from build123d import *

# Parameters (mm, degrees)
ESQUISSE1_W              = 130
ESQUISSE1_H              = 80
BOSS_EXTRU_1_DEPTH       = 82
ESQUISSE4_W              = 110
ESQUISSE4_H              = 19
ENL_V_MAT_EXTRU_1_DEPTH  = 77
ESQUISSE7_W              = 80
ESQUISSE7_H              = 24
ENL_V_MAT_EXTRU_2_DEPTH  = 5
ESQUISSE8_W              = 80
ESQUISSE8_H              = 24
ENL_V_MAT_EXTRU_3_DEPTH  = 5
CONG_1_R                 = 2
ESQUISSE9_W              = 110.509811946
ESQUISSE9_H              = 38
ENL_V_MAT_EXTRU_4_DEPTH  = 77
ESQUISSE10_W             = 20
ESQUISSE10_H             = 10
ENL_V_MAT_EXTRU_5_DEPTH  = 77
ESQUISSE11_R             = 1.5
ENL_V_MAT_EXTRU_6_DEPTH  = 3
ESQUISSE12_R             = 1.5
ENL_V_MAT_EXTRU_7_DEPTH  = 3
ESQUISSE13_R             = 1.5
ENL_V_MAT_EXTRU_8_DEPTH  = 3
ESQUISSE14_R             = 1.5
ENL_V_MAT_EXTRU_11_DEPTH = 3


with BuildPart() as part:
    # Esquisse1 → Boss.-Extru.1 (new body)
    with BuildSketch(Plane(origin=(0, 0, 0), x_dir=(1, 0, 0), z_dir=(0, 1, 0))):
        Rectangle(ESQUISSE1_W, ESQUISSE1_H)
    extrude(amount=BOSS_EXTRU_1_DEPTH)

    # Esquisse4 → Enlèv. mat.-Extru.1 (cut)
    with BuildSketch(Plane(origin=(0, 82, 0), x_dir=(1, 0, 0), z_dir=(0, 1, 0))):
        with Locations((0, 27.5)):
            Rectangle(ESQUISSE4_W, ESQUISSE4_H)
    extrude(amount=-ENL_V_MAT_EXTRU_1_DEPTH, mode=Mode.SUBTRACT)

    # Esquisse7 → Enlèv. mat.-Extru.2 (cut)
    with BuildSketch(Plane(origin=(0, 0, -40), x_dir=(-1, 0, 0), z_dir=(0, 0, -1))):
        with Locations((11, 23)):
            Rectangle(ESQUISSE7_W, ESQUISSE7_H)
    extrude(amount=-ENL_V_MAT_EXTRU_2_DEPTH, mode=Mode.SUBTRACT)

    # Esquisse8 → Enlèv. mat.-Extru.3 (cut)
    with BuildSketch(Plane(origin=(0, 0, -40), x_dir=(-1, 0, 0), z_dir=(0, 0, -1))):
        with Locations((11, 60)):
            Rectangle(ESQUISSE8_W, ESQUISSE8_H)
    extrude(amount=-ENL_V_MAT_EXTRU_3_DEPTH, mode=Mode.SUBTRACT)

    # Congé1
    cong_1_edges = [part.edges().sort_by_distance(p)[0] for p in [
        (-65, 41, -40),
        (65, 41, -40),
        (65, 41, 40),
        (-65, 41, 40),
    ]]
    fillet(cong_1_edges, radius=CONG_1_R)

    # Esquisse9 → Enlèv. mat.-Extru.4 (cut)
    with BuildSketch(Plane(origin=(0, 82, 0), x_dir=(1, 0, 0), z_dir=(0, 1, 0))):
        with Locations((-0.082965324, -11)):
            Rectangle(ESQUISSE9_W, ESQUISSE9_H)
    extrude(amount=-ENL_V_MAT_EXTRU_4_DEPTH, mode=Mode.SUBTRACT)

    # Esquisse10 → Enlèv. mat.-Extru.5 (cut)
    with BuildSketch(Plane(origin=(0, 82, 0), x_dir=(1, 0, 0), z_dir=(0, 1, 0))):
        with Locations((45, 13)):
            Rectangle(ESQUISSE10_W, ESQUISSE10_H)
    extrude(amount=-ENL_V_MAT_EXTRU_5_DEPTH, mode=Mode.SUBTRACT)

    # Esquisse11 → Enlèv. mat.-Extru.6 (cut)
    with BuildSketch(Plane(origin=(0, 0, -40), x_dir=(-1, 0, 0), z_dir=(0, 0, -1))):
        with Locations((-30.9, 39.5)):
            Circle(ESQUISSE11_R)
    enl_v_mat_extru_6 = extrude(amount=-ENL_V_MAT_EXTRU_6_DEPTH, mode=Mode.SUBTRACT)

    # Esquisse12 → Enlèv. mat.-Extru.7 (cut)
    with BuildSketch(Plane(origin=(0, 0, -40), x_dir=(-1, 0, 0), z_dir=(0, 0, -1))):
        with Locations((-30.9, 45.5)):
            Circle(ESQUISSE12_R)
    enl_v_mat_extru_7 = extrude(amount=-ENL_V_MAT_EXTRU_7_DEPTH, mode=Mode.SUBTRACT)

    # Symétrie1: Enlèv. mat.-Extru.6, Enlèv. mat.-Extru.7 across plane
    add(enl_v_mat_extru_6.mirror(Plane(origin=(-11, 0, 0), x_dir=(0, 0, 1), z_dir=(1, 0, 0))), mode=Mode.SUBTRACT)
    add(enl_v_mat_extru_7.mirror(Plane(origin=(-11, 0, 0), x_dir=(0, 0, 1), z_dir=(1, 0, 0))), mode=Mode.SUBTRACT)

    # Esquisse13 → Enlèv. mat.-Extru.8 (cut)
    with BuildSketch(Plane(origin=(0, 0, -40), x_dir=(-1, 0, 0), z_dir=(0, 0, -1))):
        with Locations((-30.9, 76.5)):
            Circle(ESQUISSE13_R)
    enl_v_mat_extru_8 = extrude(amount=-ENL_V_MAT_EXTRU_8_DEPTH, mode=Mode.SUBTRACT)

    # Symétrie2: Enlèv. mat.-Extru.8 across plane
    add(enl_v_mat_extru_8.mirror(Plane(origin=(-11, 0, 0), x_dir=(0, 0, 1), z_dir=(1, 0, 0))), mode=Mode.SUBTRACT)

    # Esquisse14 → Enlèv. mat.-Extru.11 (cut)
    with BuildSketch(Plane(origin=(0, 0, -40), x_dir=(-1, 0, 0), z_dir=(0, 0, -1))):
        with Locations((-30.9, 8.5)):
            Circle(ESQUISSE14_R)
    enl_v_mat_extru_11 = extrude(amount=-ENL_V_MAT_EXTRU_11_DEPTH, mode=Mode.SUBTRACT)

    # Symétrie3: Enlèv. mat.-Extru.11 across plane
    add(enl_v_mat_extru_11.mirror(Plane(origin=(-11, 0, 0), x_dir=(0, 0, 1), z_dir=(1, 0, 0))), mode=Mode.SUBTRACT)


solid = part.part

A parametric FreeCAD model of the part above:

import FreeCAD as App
import Part
import Sketcher


def edges_at(feature, points):
    """Names of the edges that pass closest to the given points."""
    edges = feature.Shape.Edges
    near = lambda p: min(range(len(edges)), key=lambda i: edges[i].distToShape(Part.Vertex(*p))[0])
    return sorted({f"Edge{near(p) + 1}" for p in points})


def add_polygon(sketch, points):
    """Adds a closed chain of lines whose ends are joined by coincident constraints."""
    first, n = sketch.GeometryCount, len(points)
    for a, b in zip(points, points[1:] + points[:1]):
        sketch.addGeometry(Part.LineSegment(App.Vector(*a, 0), App.Vector(*b, 0)), False)
    for i in range(n):
        sketch.addConstraint(Sketcher.Constraint("Coincident", first + i, 2, first + (i + 1) % n, 1))

doc = App.newDocument("Part")
params = doc.addObject("Spreadsheet::Sheet", "Params")
for row, (alias, value) in enumerate([
    ("sketch1_width", "130 mm"),
    ("sketch1_height", "80 mm"),
    ("pad1_length", "82 mm"),
    ("sketch2_width", "110 mm"),
    ("sketch2_height", "19 mm"),
    ("pocket1_length", "77 mm"),
    ("sketch3_width", "80 mm"),
    ("sketch3_height", "24 mm"),
    ("pocket2_length", "5 mm"),
    ("sketch4_width", "80 mm"),
    ("sketch4_height", "24 mm"),
    ("pocket3_length", "5 mm"),
    ("fillet_radius", "2 mm"),
    ("sketch5_height", "38 mm"),
    ("pocket4_length", "77 mm"),
    ("sketch6_width", "20 mm"),
    ("sketch6_height", "10 mm"),
    ("pocket5_length", "77 mm"),
    ("sketch7_diameter", "3 mm"),
    ("pocket6_length", "3 mm"),
    ("sketch8_diameter", "3 mm"),
    ("pocket7_length", "3 mm"),
    ("sketch9_diameter", "3 mm"),
    ("pocket8_length", "3 mm"),
    ("sketch10_diameter", "3 mm"),
    ("pocket9_length", "3 mm"),
], start=1):
    params.set(f"A{row}", alias)
    params.set(f"B{row}", "=" + value)
    params.setAlias(f"B{row}", alias)

body = doc.addObject("PartDesign::Body", "Body")

# Sketch on XZ plane
sketch1 = body.newObject("Sketcher::SketchObject", "Sketch")
sketch1.AttachmentSupport = (doc.getObject("XZ_Plane"), [""])
sketch1.MapMode = "FlatFace"
add_polygon(sketch1, [(-65, -40), (-65, 40), (65, 40), (65, -40)])  # lines 0-3
sketch1.addConstraint([
    Sketcher.Constraint("Vertical", 0),
    Sketcher.Constraint("Horizontal", 1),
    Sketcher.Constraint("Vertical", 2),
    Sketcher.Constraint("Horizontal", 3),
    Sketcher.Constraint("Symmetric", 0, 2, 2, 2, -1, 1),
    Sketcher.Constraint("DistanceX", 1, 1, 1, 2, 130.0),
    Sketcher.Constraint("DistanceY", 0, 1, 0, 2, 80.0),
])
sketch1.setExpression("Constraints[9]", "Params.sketch1_width")
sketch1.setExpression("Constraints[10]", "Params.sketch1_height")
pad1 = body.newObject("PartDesign::Pad", "Pad")
pad1.Profile = sketch1
pad1.setExpression("Length", "Params.pad1_length")
pad1.Reversed = True

# Sketch on XZ plane
sketch2 = body.newObject("Sketcher::SketchObject", "Sketch001")
sketch2.AttachmentSupport = (doc.getObject("XZ_Plane"), [""])
sketch2.MapMode = "FlatFace"
sketch2.AttachmentOffset = App.Placement(App.Vector(0, 0, -82), App.Rotation())
add_polygon(sketch2, [(-55, -37), (-55, -18), (55, -18), (55, -37)])  # lines 0-3
sketch2.addConstraint([
    Sketcher.Constraint("Vertical", 0),
    Sketcher.Constraint("Horizontal", 1),
    Sketcher.Constraint("Vertical", 2),
    Sketcher.Constraint("Horizontal", 3),
    Sketcher.Constraint("DistanceX", 1, 1, 1, 2, 110.0),
    Sketcher.Constraint("DistanceY", 0, 1, 0, 2, 19.0),
    Sketcher.Constraint("DistanceX", 0, 2, -1, 1, 55.0),
    Sketcher.Constraint("DistanceY", 0, 2, -1, 1, 18.0),
])
sketch2.setExpression("Constraints[8]", "Params.sketch2_width")
sketch2.setExpression("Constraints[9]", "Params.sketch2_height")
pocket1 = body.newObject("PartDesign::Pocket", "Pocket")
pocket1.Profile = sketch2
pocket1.setExpression("Length", "Params.pocket1_length")
pocket1.Reversed = True

# Sketch on XY plane
sketch3 = body.newObject("Sketcher::SketchObject", "Sketch002")
sketch3.AttachmentSupport = (doc.getObject("XY_Plane"), [""])
sketch3.MapMode = "FlatFace"
sketch3.AttachmentOffset = App.Placement(App.Vector(0, 0, -40), App.Rotation())
add_polygon(sketch3, [(29, 35), (29, 11), (-51, 11), (-51, 35)])  # lines 0-3
sketch3.addConstraint([
    Sketcher.Constraint("Vertical", 0),
    Sketcher.Constraint("Horizontal", 1),
    Sketcher.Constraint("Vertical", 2),
    Sketcher.Constraint("Horizontal", 3),
    Sketcher.Constraint("DistanceX", 1, 2, 1, 1, 80.0),
    Sketcher.Constraint("DistanceY", 0, 2, 0, 1, 24.0),
    Sketcher.Constraint("DistanceX", -1, 1, 0, 2, 29.0),
    Sketcher.Constraint("DistanceY", -1, 1, 0, 2, 11.0),
])
sketch3.setExpression("Constraints[8]", "Params.sketch3_width")
sketch3.setExpression("Constraints[9]", "Params.sketch3_height")
pocket2 = body.newObject("PartDesign::Pocket", "Pocket001")
pocket2.Profile = sketch3
pocket2.setExpression("Length", "Params.pocket2_length")
pocket2.Reversed = True

# Sketch on XY plane
sketch4 = body.newObject("Sketcher::SketchObject", "Sketch003")
sketch4.AttachmentSupport = (doc.getObject("XY_Plane"), [""])
sketch4.MapMode = "FlatFace"
sketch4.AttachmentOffset = App.Placement(App.Vector(0, 0, -40), App.Rotation())
add_polygon(sketch4, [(29, 72), (29, 48), (-51, 48), (-51, 72)])  # lines 0-3
sketch4.addConstraint([
    Sketcher.Constraint("Vertical", 0),
    Sketcher.Constraint("Horizontal", 1),
    Sketcher.Constraint("Vertical", 2),
    Sketcher.Constraint("Horizontal", 3),
    Sketcher.Constraint("DistanceX", 1, 2, 1, 1, 80.0),
    Sketcher.Constraint("DistanceY", 0, 2, 0, 1, 24.0),
    Sketcher.Constraint("DistanceX", -1, 1, 0, 2, 29.0),
    Sketcher.Constraint("DistanceY", -1, 1, 0, 2, 48.0),
])
sketch4.setExpression("Constraints[8]", "Params.sketch4_width")
sketch4.setExpression("Constraints[9]", "Params.sketch4_height")
pocket3 = body.newObject("PartDesign::Pocket", "Pocket002")
pocket3.Profile = sketch4
pocket3.setExpression("Length", "Params.pocket3_length")
pocket3.Reversed = True
doc.recompute()

fillet = body.newObject("PartDesign::Fillet", "Fillet")
fillet.Base = (pocket3, edges_at(pocket3, [
    (-65, 41, -40),
    (65, 41, -40),
    (65, 41, 40),
    (-65, 41, 40),
]))
fillet.setExpression("Radius", "Params.fillet_radius")

# Sketch on XZ plane
sketch5 = body.newObject("Sketcher::SketchObject", "Sketch004")
sketch5.AttachmentSupport = (doc.getObject("XZ_Plane"), [""])
sketch5.MapMode = "FlatFace"
sketch5.AttachmentOffset = App.Placement(App.Vector(0, 0, -82), App.Rotation())
add_polygon(sketch5, [(-55, -8), (-55, 30), (55, 30), (55, -8)])  # lines 0-3
sketch5.addConstraint([
    Sketcher.Constraint("Vertical", 0),
    Sketcher.Constraint("Horizontal", 1),
    Sketcher.Constraint("Vertical", 2),
    Sketcher.Constraint("Horizontal", 3),
    Sketcher.Constraint("DistanceY", 0, 1, 0, 2, 38.0),
    Sketcher.Constraint("DistanceY", -1, 1, 0, 2, 30.0),
    Sketcher.Constraint("DistanceX", 1, 1, 1, 2, 110.509812),
    Sketcher.Constraint("DistanceX", 0, 2, -1, 1, 55.337871),
])
sketch5.setExpression("Constraints[8]", "Params.sketch5_height")
pocket4 = body.newObject("PartDesign::Pocket", "Pocket003")
pocket4.Profile = sketch5
pocket4.setExpression("Length", "Params.pocket4_length")
pocket4.Reversed = True

# Sketch on XZ plane
sketch6 = body.newObject("Sketcher::SketchObject", "Sketch005")
sketch6.AttachmentSupport = (doc.getObject("XZ_Plane"), [""])
sketch6.MapMode = "FlatFace"
sketch6.AttachmentOffset = App.Placement(App.Vector(0, 0, -82), App.Rotation())
add_polygon(sketch6, [(35, -18), (35, -8), (55, -8), (55, -18)])  # lines 0-3
sketch6.addConstraint([
    Sketcher.Constraint("Vertical", 0),
    Sketcher.Constraint("Horizontal", 1),
    Sketcher.Constraint("Vertical", 2),
    Sketcher.Constraint("Horizontal", 3),
    Sketcher.Constraint("DistanceX", 1, 1, 1, 2, 20.0),
    Sketcher.Constraint("DistanceY", 0, 1, 0, 2, 10.0),
    Sketcher.Constraint("DistanceX", -1, 1, 0, 2, 35.0),
    Sketcher.Constraint("DistanceY", 0, 2, -1, 1, 8.0),
])
sketch6.setExpression("Constraints[8]", "Params.sketch6_width")
sketch6.setExpression("Constraints[9]", "Params.sketch6_height")
pocket5 = body.newObject("PartDesign::Pocket", "Pocket004")
pocket5.Profile = sketch6
pocket5.setExpression("Length", "Params.pocket5_length")
pocket5.Reversed = True

# Sketch on XY plane
sketch7 = body.newObject("Sketcher::SketchObject", "Sketch006")
sketch7.AttachmentSupport = (doc.getObject("XY_Plane"), [""])
sketch7.MapMode = "FlatFace"
sketch7.AttachmentOffset = App.Placement(App.Vector(0, 0, -40), App.Rotation())
sketch7.addGeometry(Part.Circle(App.Vector(30.9, 39.5, 0), App.Vector(0, 0, 1), 1.5), False)
sketch7.addConstraint([
    Sketcher.Constraint("Diameter", 0, 3.0),
    Sketcher.Constraint("DistanceX", -1, 1, 0, 3, 30.9),
    Sketcher.Constraint("DistanceY", -1, 1, 0, 3, 39.5),
])
sketch7.setExpression("Constraints[0]", "Params.sketch7_diameter")
pocket6 = body.newObject("PartDesign::Pocket", "Pocket005")
pocket6.Profile = sketch7
pocket6.setExpression("Length", "Params.pocket6_length")
pocket6.Reversed = True

# Sketch on XY plane
sketch8 = body.newObject("Sketcher::SketchObject", "Sketch007")
sketch8.AttachmentSupport = (doc.getObject("XY_Plane"), [""])
sketch8.MapMode = "FlatFace"
sketch8.AttachmentOffset = App.Placement(App.Vector(0, 0, -40), App.Rotation())
sketch8.addGeometry(Part.Circle(App.Vector(30.9, 45.5, 0), App.Vector(0, 0, 1), 1.5), False)
sketch8.addConstraint([
    Sketcher.Constraint("Diameter", 0, 3.0),
    Sketcher.Constraint("DistanceX", -1, 1, 0, 3, 30.9),
    Sketcher.Constraint("DistanceY", -1, 1, 0, 3, 45.5),
])
sketch8.setExpression("Constraints[0]", "Params.sketch8_diameter")
pocket7 = body.newObject("PartDesign::Pocket", "Pocket006")
pocket7.Profile = sketch8
pocket7.setExpression("Length", "Params.pocket7_length")
pocket7.Reversed = True
doc.recompute()

datumplane = body.newObject("PartDesign::Plane", "DatumPlane")
datumplane.AttachmentSupport = (doc.getObject("YZ_Plane"), [""])
datumplane.MapMode = "FlatFace"
datumplane.AttachmentOffset = App.Placement(App.Vector(0, 0, -11), App.Rotation())
mirrored = body.newObject("PartDesign::Mirrored", "Mirrored")
mirrored.Originals = [pocket6, pocket7]
mirrored.MirrorPlane = (datumplane, [""])
body.Tip = mirrored

# Sketch on XY plane
sketch9 = body.newObject("Sketcher::SketchObject", "Sketch008")
sketch9.AttachmentSupport = (doc.getObject("XY_Plane"), [""])
sketch9.MapMode = "FlatFace"
sketch9.AttachmentOffset = App.Placement(App.Vector(0, 0, -40), App.Rotation())
sketch9.addGeometry(Part.Circle(App.Vector(30.9, 76.5, 0), App.Vector(0, 0, 1), 1.5), False)
sketch9.addConstraint([
    Sketcher.Constraint("Diameter", 0, 3.0),
    Sketcher.Constraint("DistanceX", -1, 1, 0, 3, 30.9),
    Sketcher.Constraint("DistanceY", -1, 1, 0, 3, 76.5),
])
sketch9.setExpression("Constraints[0]", "Params.sketch9_diameter")
pocket8 = body.newObject("PartDesign::Pocket", "Pocket007")
pocket8.Profile = sketch9
pocket8.setExpression("Length", "Params.pocket8_length")
pocket8.Reversed = True
doc.recompute()

datumplane2 = body.newObject("PartDesign::Plane", "DatumPlane001")
datumplane2.AttachmentSupport = (doc.getObject("YZ_Plane"), [""])
datumplane2.MapMode = "FlatFace"
datumplane2.AttachmentOffset = App.Placement(App.Vector(0, 0, -11), App.Rotation())
mirrored2 = body.newObject("PartDesign::Mirrored", "Mirrored001")
mirrored2.Originals = [pocket8]
mirrored2.MirrorPlane = (datumplane2, [""])
body.Tip = mirrored2

# Sketch on XY plane
sketch10 = body.newObject("Sketcher::SketchObject", "Sketch009")
sketch10.AttachmentSupport = (doc.getObject("XY_Plane"), [""])
sketch10.MapMode = "FlatFace"
sketch10.AttachmentOffset = App.Placement(App.Vector(0, 0, -40), App.Rotation())
sketch10.addGeometry(Part.Circle(App.Vector(30.9, 8.5, 0), App.Vector(0, 0, 1), 1.5), False)
sketch10.addConstraint([
    Sketcher.Constraint("Diameter", 0, 3.0),
    Sketcher.Constraint("DistanceX", -1, 1, 0, 3, 30.9),
    Sketcher.Constraint("DistanceY", -1, 1, 0, 3, 8.5),
])
sketch10.setExpression("Constraints[0]", "Params.sketch10_diameter")
pocket9 = body.newObject("PartDesign::Pocket", "Pocket008")
pocket9.Profile = sketch10
pocket9.setExpression("Length", "Params.pocket9_length")
pocket9.Reversed = True
doc.recompute()

datumplane3 = body.newObject("PartDesign::Plane", "DatumPlane002")
datumplane3.AttachmentSupport = (doc.getObject("YZ_Plane"), [""])
datumplane3.MapMode = "FlatFace"
datumplane3.AttachmentOffset = App.Placement(App.Vector(0, 0, -11), App.Rotation())
mirrored3 = body.newObject("PartDesign::Mirrored", "Mirrored002")
mirrored3.Originals = [pocket9]
mirrored3.MirrorPlane = (datumplane3, [""])
body.Tip = mirrored3

doc.recompute()
